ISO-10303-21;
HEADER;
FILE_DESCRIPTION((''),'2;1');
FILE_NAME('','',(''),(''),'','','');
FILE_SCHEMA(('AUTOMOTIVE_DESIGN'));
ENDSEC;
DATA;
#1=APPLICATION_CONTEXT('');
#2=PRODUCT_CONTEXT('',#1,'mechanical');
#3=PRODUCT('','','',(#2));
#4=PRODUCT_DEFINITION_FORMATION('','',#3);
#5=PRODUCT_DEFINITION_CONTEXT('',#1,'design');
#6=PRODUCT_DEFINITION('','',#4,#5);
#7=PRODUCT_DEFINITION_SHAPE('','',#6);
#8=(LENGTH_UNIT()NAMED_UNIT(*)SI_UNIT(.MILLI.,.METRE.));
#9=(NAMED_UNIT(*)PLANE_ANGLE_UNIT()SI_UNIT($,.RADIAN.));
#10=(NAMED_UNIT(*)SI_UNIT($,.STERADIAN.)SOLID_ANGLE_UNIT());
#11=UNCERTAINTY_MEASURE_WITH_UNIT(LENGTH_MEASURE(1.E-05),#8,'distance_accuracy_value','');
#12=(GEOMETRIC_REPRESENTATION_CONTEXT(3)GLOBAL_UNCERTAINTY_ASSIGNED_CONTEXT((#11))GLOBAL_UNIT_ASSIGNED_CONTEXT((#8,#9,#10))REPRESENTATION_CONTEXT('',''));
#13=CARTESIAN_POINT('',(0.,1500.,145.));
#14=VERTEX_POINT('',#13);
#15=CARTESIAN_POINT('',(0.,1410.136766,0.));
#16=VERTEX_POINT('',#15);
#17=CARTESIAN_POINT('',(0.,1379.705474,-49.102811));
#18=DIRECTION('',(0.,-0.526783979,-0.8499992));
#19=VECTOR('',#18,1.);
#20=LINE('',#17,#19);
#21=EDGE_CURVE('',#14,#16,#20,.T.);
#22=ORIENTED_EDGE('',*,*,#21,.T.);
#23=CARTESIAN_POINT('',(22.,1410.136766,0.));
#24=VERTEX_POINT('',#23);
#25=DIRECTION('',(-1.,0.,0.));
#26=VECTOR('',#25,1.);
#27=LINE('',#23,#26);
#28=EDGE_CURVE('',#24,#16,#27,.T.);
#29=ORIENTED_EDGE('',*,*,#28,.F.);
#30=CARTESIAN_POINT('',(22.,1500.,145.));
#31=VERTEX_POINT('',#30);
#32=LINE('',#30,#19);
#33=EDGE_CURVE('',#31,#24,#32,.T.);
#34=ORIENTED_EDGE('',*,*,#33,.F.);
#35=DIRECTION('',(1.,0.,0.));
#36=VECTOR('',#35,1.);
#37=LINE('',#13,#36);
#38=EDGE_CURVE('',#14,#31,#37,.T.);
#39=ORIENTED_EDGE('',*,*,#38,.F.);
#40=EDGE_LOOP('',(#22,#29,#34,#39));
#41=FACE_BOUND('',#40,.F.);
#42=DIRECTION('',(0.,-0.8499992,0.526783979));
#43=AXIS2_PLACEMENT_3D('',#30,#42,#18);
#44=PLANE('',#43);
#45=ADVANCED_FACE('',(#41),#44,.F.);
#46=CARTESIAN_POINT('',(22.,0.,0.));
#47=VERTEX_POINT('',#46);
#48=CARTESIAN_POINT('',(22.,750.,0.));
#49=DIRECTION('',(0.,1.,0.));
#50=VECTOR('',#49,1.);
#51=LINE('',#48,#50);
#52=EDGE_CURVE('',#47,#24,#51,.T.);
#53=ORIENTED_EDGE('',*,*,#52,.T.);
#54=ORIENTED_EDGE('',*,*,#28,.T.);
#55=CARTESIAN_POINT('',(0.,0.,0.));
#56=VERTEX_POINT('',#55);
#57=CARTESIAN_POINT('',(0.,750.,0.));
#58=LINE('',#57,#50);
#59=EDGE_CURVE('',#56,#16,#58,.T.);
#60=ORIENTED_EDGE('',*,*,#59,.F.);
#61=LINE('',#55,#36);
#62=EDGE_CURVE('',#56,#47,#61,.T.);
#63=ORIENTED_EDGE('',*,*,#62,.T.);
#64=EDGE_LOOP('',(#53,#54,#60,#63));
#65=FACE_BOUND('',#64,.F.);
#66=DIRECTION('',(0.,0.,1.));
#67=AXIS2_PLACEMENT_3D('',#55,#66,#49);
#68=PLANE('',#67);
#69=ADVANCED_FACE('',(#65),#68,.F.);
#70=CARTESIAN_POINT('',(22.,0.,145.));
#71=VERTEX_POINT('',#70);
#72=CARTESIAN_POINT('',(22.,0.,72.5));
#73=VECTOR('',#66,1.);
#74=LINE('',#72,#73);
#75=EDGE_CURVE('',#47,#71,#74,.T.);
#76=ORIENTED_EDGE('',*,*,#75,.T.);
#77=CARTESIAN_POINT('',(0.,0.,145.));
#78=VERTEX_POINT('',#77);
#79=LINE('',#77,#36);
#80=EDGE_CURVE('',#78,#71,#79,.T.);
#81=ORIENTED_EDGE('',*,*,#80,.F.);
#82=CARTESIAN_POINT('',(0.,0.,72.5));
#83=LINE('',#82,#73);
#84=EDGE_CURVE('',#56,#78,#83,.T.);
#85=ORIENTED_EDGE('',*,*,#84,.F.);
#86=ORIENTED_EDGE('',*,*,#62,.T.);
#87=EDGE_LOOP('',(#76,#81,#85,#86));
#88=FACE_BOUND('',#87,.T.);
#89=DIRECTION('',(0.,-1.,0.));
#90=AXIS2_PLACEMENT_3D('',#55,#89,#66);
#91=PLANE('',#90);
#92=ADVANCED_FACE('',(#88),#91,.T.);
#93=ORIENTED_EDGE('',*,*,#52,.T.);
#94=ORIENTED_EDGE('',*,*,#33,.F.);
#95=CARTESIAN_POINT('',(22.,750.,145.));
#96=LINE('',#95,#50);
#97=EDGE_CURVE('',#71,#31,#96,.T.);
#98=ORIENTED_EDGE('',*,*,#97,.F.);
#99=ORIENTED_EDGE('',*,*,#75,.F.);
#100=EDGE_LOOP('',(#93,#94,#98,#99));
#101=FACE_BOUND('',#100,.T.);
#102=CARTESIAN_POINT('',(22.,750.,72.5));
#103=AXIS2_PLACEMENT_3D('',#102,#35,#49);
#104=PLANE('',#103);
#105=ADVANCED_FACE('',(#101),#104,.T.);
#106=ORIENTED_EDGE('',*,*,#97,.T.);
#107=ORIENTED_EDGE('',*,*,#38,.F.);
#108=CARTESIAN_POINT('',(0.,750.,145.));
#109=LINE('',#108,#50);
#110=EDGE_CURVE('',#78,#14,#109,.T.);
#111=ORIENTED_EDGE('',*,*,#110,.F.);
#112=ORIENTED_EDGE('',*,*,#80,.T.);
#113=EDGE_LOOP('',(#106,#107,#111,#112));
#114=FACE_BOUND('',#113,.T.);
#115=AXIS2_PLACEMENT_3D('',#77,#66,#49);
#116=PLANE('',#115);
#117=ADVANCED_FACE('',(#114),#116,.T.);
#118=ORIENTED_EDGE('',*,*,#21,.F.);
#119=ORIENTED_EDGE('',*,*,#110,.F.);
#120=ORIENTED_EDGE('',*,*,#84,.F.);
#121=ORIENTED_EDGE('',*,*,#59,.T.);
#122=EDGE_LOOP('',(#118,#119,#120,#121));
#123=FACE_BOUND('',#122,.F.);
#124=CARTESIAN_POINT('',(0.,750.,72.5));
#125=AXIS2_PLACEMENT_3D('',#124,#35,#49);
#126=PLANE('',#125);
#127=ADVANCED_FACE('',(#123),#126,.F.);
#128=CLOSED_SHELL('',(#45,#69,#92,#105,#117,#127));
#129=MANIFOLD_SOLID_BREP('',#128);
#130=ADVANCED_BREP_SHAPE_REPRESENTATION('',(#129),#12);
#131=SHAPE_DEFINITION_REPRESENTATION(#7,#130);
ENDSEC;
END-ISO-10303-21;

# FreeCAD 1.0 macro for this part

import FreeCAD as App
import Part
import Sketcher

V = App.Vector

doc = App.newDocument("Part")
body = doc.addObject("PartDesign::Body", "Body")

sketch1 = body.newObject("Sketcher::SketchObject", "Sketch")
sketch1.AttachmentSupport = (doc.getObject("YZ_Plane"), [""])
sketch1.MapMode = "FlatFace"
sketch1.addGeometry(Part.LineSegment(V(0, 145, 0), V(0, 0, 0)), False)
sketch1.addGeometry(Part.LineSegment(V(0, 0, 0), V(1500, 0, 0)), False)
sketch1.addGeometry(Part.LineSegment(V(1500, 0, 0), V(1500, 145, 0)), False)
sketch1.addGeometry(Part.LineSegment(V(1500, 145, 0), V(0, 145, 0)), False)
sketch1.addConstraint(Sketcher.Constraint("Coincident", 0, 2, 1, 1))
sketch1.addConstraint(Sketcher.Constraint("Coincident", 1, 2, 2, 1))
sketch1.addConstraint(Sketcher.Constraint("Coincident", 2, 2, 3, 1))
sketch1.addConstraint(Sketcher.Constraint("Coincident", 3, 2, 0, 1))
sketch1.addConstraint(Sketcher.Constraint("Vertical", 0))
sketch1.addConstraint(Sketcher.Constraint("Horizontal", 1))
sketch1.addConstraint(Sketcher.Constraint("Vertical", 2))
sketch1.addConstraint(Sketcher.Constraint("Horizontal", 3))
sketch1.addConstraint(Sketcher.Constraint("Coincident", 0, 2, -1, 1))
sketch1.addConstraint(Sketcher.Constraint("DistanceX", 1, 1, 1, 2, 1500.0))
sketch1.addConstraint(Sketcher.Constraint("DistanceY", 0, 2, 0, 1, 145.0))
pad1 = body.newObject("PartDesign::Pad", "Pad")
pad1.Profile = sketch1
pad1.Length = 22

sketch2 = body.newObject("Sketcher::SketchObject", "Sketch001")
sketch2.AttachmentSupport = (doc.getObject("YZ_Plane"), [""])
sketch2.MapMode = "FlatFace"
sketch2.AttachmentOffset = App.Placement(V(0, 0, 22), App.Rotation())
sketch2.addGeometry(Part.LineSegment(V(1410, 0, 0), V(1396, -23, 0)), False)
sketch2.addGeometry(Part.LineSegment(V(1396, -23, 0), V(1500, -23, 0)), False)
sketch2.addGeometry(Part.LineSegment(V(1500, -23, 0), V(1500, 145, 0)), False)
sketch2.addGeometry(Part.LineSegment(V(1500, 145, 0), V(1410, 0, 0)), False)
sketch2.addConstraint(Sketcher.Constraint("Coincident", 0, 2, 1, 1))
sketch2.addConstraint(Sketcher.Constraint("Coincident", 1, 2, 2, 1))
sketch2.addConstraint(Sketcher.Constraint("Coincident", 2, 2, 3, 1))
sketch2.addConstraint(Sketcher.Constraint("Coincident", 3, 2, 0, 1))
sketch2.addConstraint(Sketcher.Constraint("Horizontal", 1))
sketch2.addConstraint(Sketcher.Constraint("Vertical", 2))
sketch2.addConstraint(Sketcher.Constraint("PointOnObject", 3, 2, -1))
sketch2.addConstraint(Sketcher.Constraint("Parallel", 0, 3))
sketch2.addConstraint(Sketcher.Constraint("DistanceX", -1, 1, 1, 2, 1500.0))
sketch2.addConstraint(Sketcher.Constraint("DistanceY", -1, 1, 2, 2, 145.0))
sketch2.addConstraint(Sketcher.Constraint("DistanceY", 2, 1, 2, 2, 167.829371))
sketch2.addConstraint(Sketcher.Constraint("Distance", 0, 26.858109))
pocket1 = body.newObject("PartDesign::Pocket", "Pocket")
pocket1.Profile = sketch2
pocket1.Length = 25

doc.recompute()
